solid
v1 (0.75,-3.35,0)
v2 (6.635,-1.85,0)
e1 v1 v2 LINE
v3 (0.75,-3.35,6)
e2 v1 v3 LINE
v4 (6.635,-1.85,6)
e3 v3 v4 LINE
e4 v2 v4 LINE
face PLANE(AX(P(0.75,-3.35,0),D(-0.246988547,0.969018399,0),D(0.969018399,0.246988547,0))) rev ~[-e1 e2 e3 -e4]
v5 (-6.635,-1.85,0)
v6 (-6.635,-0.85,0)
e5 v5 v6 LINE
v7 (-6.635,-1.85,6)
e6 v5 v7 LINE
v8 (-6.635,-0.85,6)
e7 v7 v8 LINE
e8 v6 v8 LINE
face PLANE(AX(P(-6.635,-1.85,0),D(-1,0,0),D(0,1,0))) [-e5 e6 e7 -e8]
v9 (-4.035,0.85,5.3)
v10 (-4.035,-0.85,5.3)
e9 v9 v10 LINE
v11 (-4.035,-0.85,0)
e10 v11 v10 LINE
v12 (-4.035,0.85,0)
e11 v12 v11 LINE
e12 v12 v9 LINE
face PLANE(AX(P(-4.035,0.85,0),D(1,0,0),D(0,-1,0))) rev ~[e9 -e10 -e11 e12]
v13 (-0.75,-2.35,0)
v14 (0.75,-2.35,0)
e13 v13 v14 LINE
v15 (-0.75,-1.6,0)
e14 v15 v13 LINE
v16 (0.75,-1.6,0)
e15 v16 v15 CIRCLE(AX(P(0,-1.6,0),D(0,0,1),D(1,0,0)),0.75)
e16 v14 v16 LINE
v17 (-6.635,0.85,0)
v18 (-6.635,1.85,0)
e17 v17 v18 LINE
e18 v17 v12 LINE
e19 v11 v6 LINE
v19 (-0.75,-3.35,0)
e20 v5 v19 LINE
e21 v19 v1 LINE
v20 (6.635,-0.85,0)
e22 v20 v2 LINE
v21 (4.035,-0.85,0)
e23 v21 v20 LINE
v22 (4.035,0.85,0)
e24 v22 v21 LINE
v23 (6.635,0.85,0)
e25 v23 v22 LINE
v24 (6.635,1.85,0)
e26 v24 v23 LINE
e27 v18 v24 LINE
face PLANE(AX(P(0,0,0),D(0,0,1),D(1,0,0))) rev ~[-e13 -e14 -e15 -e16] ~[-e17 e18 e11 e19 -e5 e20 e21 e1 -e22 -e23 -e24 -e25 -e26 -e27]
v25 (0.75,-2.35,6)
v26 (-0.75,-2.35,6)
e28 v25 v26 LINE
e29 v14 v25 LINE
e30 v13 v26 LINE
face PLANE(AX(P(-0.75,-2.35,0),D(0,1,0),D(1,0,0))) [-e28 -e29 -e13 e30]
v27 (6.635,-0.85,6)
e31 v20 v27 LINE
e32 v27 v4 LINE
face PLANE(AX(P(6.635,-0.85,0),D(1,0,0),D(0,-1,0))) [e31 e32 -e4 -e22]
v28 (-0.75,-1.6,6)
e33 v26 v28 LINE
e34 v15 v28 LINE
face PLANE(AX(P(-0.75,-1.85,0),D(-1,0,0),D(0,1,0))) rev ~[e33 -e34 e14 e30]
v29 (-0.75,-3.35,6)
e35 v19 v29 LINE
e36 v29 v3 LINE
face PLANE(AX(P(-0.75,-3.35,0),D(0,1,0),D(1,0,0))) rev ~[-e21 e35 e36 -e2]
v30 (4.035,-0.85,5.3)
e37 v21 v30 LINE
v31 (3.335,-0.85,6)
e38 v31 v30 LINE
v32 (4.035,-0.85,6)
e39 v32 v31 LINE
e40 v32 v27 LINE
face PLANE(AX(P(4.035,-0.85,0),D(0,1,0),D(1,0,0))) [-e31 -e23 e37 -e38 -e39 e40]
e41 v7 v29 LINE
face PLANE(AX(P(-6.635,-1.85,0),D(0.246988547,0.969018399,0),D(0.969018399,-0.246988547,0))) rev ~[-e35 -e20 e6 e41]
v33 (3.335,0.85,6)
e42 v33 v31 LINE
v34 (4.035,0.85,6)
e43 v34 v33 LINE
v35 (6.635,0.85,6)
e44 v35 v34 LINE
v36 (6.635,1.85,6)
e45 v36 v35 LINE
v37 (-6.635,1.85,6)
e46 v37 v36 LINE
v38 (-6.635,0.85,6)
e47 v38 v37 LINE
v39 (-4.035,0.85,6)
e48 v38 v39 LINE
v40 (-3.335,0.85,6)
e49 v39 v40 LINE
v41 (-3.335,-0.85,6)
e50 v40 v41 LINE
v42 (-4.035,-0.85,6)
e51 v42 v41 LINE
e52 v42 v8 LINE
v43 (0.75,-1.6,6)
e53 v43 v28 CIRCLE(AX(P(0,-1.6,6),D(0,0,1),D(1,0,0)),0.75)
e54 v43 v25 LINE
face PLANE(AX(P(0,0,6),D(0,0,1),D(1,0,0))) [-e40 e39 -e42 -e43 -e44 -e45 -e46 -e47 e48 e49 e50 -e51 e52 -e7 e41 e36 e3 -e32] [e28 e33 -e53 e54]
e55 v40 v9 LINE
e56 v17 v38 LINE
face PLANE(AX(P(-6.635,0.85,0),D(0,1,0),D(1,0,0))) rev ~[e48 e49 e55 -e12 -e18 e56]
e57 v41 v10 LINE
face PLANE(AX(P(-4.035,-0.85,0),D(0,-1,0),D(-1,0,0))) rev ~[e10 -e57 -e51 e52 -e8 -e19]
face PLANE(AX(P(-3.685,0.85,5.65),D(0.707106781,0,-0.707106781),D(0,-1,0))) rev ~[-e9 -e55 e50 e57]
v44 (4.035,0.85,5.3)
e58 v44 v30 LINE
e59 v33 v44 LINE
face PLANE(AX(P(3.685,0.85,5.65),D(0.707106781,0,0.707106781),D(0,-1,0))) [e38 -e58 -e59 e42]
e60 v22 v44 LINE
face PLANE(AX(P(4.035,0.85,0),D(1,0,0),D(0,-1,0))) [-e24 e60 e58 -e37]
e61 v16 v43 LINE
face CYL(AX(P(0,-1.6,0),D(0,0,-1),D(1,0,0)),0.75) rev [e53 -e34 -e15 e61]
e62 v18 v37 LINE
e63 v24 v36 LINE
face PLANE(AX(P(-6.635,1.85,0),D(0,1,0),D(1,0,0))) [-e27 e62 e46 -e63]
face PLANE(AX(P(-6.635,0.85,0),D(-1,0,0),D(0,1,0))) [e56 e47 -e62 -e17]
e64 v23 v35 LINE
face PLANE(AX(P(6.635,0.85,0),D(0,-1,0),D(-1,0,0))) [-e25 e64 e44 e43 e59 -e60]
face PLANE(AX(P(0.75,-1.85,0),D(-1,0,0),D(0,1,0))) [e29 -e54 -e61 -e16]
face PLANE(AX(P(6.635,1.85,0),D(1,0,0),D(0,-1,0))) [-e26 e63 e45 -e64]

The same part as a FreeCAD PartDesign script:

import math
import FreeCAD as App
import Part
import Sketcher


def edges_at(feature, points):
    """Names of the edges that pass closest to the given points."""
    edges = feature.Shape.Edges
    near = lambda p: min(range(len(edges)), key=lambda i: edges[i].distToShape(Part.Vertex(*p))[0])
    return sorted({f"Edge{near(p) + 1}" for p in points})

doc = App.newDocument("Part")
body = doc.addObject("PartDesign::Body", "Body")

# Sketch on XY plane
sketch1 = doc.addObject("Sketcher::SketchObject", "Sketch")
body.addObject(sketch1)
sketch1.AttachmentSupport = (doc.XY_Plane, [""])
sketch1.MapMode = "FlatFace"
sketch1.addGeometry([
    Part.LineSegment(App.Vector(6.6, 1.9, 0), App.Vector(-6.6, 1.9, 0)),  # 0
    Part.LineSegment(App.Vector(-6.6, 1.9, 0), App.Vector(-6.6, 0.8, 0)),  # 1
    Part.LineSegment(App.Vector(-6.6, 0.8, 0), App.Vector(-4, 0.8, 0)),  # 2
    Part.LineSegment(App.Vector(-4, 0.8, 0), App.Vector(-4, -0.8, 0)),  # 3
    Part.LineSegment(App.Vector(-4, -0.8, 0), App.Vector(-6.6, -0.8, 0)),  # 4
    Part.LineSegment(App.Vector(-6.6, -0.8, 0), App.Vector(-6.6, -1.9, 0)),  # 5
    Part.LineSegment(App.Vector(-6.6, -1.9, 0), App.Vector(-0.8, -3.4, 0)),  # 6
    Part.LineSegment(App.Vector(-0.8, -3.4, 0), App.Vector(0.8, -3.4, 0)),  # 7
    Part.LineSegment(App.Vector(0.8, -3.4, 0), App.Vector(6.6, -1.9, 0)),  # 8
    Part.LineSegment(App.Vector(6.6, -1.9, 0), App.Vector(6.6, -0.8, 0)),  # 9
    Part.LineSegment(App.Vector(6.6, -0.8, 0), App.Vector(4, -0.8, 0)),  # 10
    Part.LineSegment(App.Vector(4, -0.8, 0), App.Vector(4, 0.8, 0)),  # 11
    Part.LineSegment(App.Vector(4, 0.8, 0), App.Vector(6.6, 0.8, 0)),  # 12
    Part.LineSegment(App.Vector(6.6, 0.8, 0), App.Vector(6.6, 1.9, 0)),  # 13
    Part.LineSegment(App.Vector(0.8, -1.6, 0), App.Vector(0.8, -2.4, 0)),  # 14
    Part.LineSegment(App.Vector(0.8, -2.4, 0), App.Vector(-0.8, -2.4, 0)),  # 15
    Part.LineSegment(App.Vector(-0.8, -2.4, 0), App.Vector(-0.8, -1.6, 0)),  # 16
    Part.ArcOfCircle(Part.Circle(App.Vector(0, -1.6, 0), App.Vector(0, 0, 1), 0.8), math.radians(0), math.radians(180)),  # 17
], False)
sketch1.addConstraint([
    Sketcher.Constraint("Coincident", 0, 2, 1, 1),
    Sketcher.Constraint("Coincident", 1, 2, 2, 1),
    Sketcher.Constraint("Coincident", 2, 2, 3, 1),
    Sketcher.Constraint("Coincident", 3, 2, 4, 1),
    Sketcher.Constraint("Coincident", 4, 2, 5, 1),
    Sketcher.Constraint("Coincident", 5, 2, 6, 1),
    Sketcher.Constraint("Coincident", 6, 2, 7, 1),
    Sketcher.Constraint("Coincident", 7, 2, 8, 1),
    Sketcher.Constraint("Coincident", 8, 2, 9, 1),
    Sketcher.Constraint("Coincident", 9, 2, 10, 1),
    Sketcher.Constraint("Coincident", 10, 2, 11, 1),
    Sketcher.Constraint("Coincident", 11, 2, 12, 1),
    Sketcher.Constraint("Coincident", 12, 2, 13, 1),
    Sketcher.Constraint("Coincident", 13, 2, 0, 1),
    Sketcher.Constraint("Coincident", 14, 2, 15, 1),
    Sketcher.Constraint("Coincident", 15, 2, 16, 1),
    Sketcher.Constraint("Tangent", 16, 2, 17, 2),
    Sketcher.Constraint("Tangent", 17, 1, 14, 1),
    Sketcher.Constraint("Horizontal", 0),
    Sketcher.Constraint("Vertical", 1),
    Sketcher.Constraint("Horizontal", 2),
    Sketcher.Constraint("Vertical", 3),
    Sketcher.Constraint("Horizontal", 4),
    Sketcher.Constraint("Vertical", 5),
    Sketcher.Constraint("Horizontal", 7),
    Sketcher.Constraint("Vertical", 9),
    Sketcher.Constraint("Horizontal", 10),
    Sketcher.Constraint("Vertical", 11),
    Sketcher.Constraint("Horizontal", 12),
    Sketcher.Constraint("Vertical", 13),
    Sketcher.Constraint("Vertical", 14),
    Sketcher.Constraint("Horizontal", 15),
    Sketcher.Constraint("Vertical", 16),
    Sketcher.Constraint("Symmetric", 0, 2, 8, 2, -1, 1),
    Sketcher.Constraint("Symmetric", 2, 2, 10, 2, -1, 1),
    Sketcher.Constraint("Symmetric", 4, 2, 12, 2, -1, 1),
    Sketcher.Constraint("Symmetric", 5, 2, 8, 2, -2),
    Sketcher.Constraint("PointOnObject", 17, 3, -2),
    Sketcher.Constraint("Horizontal", 4, 2, 9, 2),
    Sketcher.Constraint("Vertical", 7, 2, 14, 2),
    Sketcher.Constraint("Vertical", 6, 2, 15, 2),
    Sketcher.Constraint("DistanceY", 1, 2, 1, 1, 1.0),
    Sketcher.Constraint("Radius", 17, 0.75),
    Sketcher.Constraint("DistanceX", 2, 1, 2, 2, 2.6),
    Sketcher.Constraint("DistanceY", 3, 2, 3, 1, 1.7),
    Sketcher.Constraint("DistanceY", 7, 2, 14, 2, 1.0),
    Sketcher.Constraint("DistanceX", 0, 2, 0, 1, 13.27),
    Sketcher.Constraint("DistanceY", 6, 2, 5, 2, 1.5),
    Sketcher.Constraint("DistanceY", 14, 2, 14, 1, 0.75),
])
pad1 = doc.addObject("PartDesign::Pad", "Pad")
body.addObject(pad1)
pad1.Profile = sketch1
pad1.Length = 6
doc.recompute()

chamfer = doc.addObject("PartDesign::Chamfer", "Chamfer")
body.addObject(chamfer)
chamfer.Base = (pad1, edges_at(pad1, [(-4.035, 0, 6), (4.035, 0, 6)]))
chamfer.Size = 0.7

doc.recompute()
